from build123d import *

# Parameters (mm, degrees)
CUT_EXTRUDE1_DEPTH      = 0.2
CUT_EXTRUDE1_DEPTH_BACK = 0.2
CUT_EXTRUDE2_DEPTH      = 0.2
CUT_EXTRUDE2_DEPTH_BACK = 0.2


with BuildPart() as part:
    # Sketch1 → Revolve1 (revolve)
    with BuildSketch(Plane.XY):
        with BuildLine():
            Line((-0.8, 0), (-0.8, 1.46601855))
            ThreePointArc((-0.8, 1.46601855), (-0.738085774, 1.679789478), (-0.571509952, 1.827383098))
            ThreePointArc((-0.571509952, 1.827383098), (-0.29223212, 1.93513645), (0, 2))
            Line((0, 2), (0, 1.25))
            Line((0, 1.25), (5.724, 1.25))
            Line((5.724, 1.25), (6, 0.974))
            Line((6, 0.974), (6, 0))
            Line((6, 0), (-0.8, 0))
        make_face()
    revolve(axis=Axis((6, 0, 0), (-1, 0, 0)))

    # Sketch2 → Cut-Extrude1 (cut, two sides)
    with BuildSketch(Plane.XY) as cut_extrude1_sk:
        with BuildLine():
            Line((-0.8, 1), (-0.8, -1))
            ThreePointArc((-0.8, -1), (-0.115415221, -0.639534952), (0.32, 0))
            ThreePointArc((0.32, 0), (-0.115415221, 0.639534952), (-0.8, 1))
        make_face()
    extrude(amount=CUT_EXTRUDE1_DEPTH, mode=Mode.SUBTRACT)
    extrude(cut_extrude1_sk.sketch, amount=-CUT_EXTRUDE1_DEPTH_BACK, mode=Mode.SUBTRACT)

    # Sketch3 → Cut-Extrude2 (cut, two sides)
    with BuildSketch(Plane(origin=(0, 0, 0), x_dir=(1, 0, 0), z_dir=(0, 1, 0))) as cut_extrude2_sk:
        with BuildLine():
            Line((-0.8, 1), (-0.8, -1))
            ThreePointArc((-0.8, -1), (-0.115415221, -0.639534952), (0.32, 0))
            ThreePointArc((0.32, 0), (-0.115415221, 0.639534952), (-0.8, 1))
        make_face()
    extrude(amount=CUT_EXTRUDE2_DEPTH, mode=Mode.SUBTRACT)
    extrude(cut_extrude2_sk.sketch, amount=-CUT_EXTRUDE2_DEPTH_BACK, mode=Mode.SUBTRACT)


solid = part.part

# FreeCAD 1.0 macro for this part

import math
import FreeCAD as App
import Part
import Sketcher

V = App.Vector
Q = App.Units.Quantity

doc = App.newDocument("Part")
body = doc.addObject("PartDesign::Body", "Body")

sketch1 = doc.addObject("Sketcher::SketchObject", "Sketch")
body.addObject(sketch1)
sketch1.AttachmentSupport = (doc.XY_Plane, [""])
sketch1.MapMode = "FlatFace"
sketch1.addGeometry([
    Part.LineSegment(V(-0.8, 1.47, 0), V(-0.8, 0, 0)),
    Part.LineSegment(V(-0.8, 0, 0), V(6, 0, 0)),
    Part.LineSegment(V(6, 0, 0), V(6, 0.97, 0)),
    Part.LineSegment(V(6, 0.97, 0), V(5.72, 1.25, 0)),
    Part.LineSegment(V(5.72, 1.25, 0), V(0, 1.25, 0)),
    Part.LineSegment(V(0, 1.25, 0), V(0, 2, 0)),
    Part.ArcOfCircle(Part.Circle(V(0.29, 0.02, 0), V(0, 0, 1), 2), math.radians(98.22), math.radians(115.39)),
    Part.ArcOfCircle(Part.Circle(V(-0.4, 1.47, 0), V(0, 0, 1), 0.4), math.radians(115), math.radians(180)),
], False)
sketch1.addConstraint([
    Sketcher.Constraint("Coincident", 0, 2, 1, 1),
    Sketcher.Constraint("Coincident", 1, 2, 2, 1),
    Sketcher.Constraint("Coincident", 2, 2, 3, 1),
    Sketcher.Constraint("Coincident", 3, 2, 4, 1),
    Sketcher.Constraint("Coincident", 4, 2, 5, 1),
    Sketcher.Constraint("Coincident", 5, 2, 6, 1),
    Sketcher.Constraint("Tangent", 6, 2, 7, 1),
    Sketcher.Constraint("Tangent", 7, 2, 0, 1),
    Sketcher.Constraint("Vertical", 0),
    Sketcher.Constraint("Horizontal", 1),
    Sketcher.Constraint("Vertical", 2),
    Sketcher.Constraint("Horizontal", 4),
    Sketcher.Constraint("Vertical", 5),
    Sketcher.Constraint("PointOnObject", 0, 2, -1),
    Sketcher.Constraint("PointOnObject", 4, 2, -2),
    Sketcher.Constraint("Radius", 6, Q("2 mm")),
    Sketcher.Constraint("Radius", 7, Q("0.4 mm")),
    Sketcher.Constraint("Angle", 3, Q("135 deg")),
    Sketcher.Constraint("DistanceX", 1, 1, 1, 2, Q("6.8 mm")),
    Sketcher.Constraint("DistanceX", -1, 1, 1, 2, Q("6 mm")),
    Sketcher.Constraint("DistanceY", -1, 1, 5, 2, Q("2 mm")),
    Sketcher.Constraint("DistanceY", 5, 1, 5, 2, Q("0.75 mm")),
    Sketcher.Constraint("DistanceX", 4, 2, 4, 1, Q("5.724 mm")),
    Sketcher.Constraint("DistanceY", 0, 2, 0, 1, Q("1.466019 mm")),
])
revolution = doc.addObject("PartDesign::Revolution", "Revolution")
body.addObject(revolution)
revolution.Profile = sketch1
revolution.ReferenceAxis = (sketch1, ["H_Axis"])
revolution.Angle = 360

sketch2 = doc.addObject("Sketcher::SketchObject", "Sketch001")
body.addObject(sketch2)
sketch2.AttachmentSupport = (doc.XY_Plane, [""])
sketch2.MapMode = "FlatFace"
sketch2.addGeometry([
    Part.LineSegment(V(-0.8, 1, 0), V(-0.8, -1, 0)),
    Part.ArcOfCircle(Part.Circle(V(-1.2, 0.6, 0), V(0, 0, 1), 1.6), math.radians(-76), math.radians(-20)),
    Part.ArcOfCircle(Part.Circle(V(-1.2, -0.6, 0), V(0, 0, 1), 1.6), math.radians(20), math.radians(76)),
], False)
sketch2.addConstraint([
    Sketcher.Constraint("Coincident", 0, 2, 1, 1),
    Sketcher.Constraint("Coincident", 1, 2, 2, 1),
    Sketcher.Constraint("Coincident", 2, 2, 0, 1),
    Sketcher.Constraint("Vertical", 0),
    Sketcher.Constraint("Equal", 1, 2),
    Sketcher.Constraint("Symmetric", 1, 3, 2, 3, -1),
    Sketcher.Constraint("Radius", 1, Q("1.6 mm")),
    Sketcher.Constraint("DistanceY", 0, 2, 0, 1, Q("2 mm")),
    Sketcher.Constraint("DistanceX", 0, 2, -1, 1, Q("0.8 mm")),
    Sketcher.Constraint("DistanceX", -1, 1, 1, 2, Q("0.32 mm")),
])
pocket1 = doc.addObject("PartDesign::Pocket", "Pocket")
body.addObject(pocket1)
pocket1.Profile = sketch2
pocket1.Type = "TwoLengths"
pocket1.Length = 0.2
pocket1.Length2 = 0.2
pocket1.Reversed = True

sketch3 = doc.addObject("Sketcher::SketchObject", "Sketch002")
body.addObject(sketch3)
sketch3.AttachmentSupport = (doc.XZ_Plane, [""])
sketch3.MapMode = "FlatFace"
sketch3.addGeometry([
    Part.LineSegment(V(-0.8, -1, 0), V(-0.8, 1, 0)),
    Part.ArcOfCircle(Part.Circle(V(-1.2, -0.6, 0), V(0, 0, 1), 1.6), math.radians(20), math.radians(76)),
    Part.ArcOfCircle(Part.Circle(V(-1.2, 0.6, 0), V(0, 0, 1), 1.6), math.radians(-76), math.radians(-20)),
], False)
sketch3.addConstraint([
    Sketcher.Constraint("Coincident", 0, 2, 1, 2),
    Sketcher.Constraint("Coincident", 1, 1, 2, 2),
    Sketcher.Constraint("Coincident", 2, 1, 0, 1),
    Sketcher.Constraint("Vertical", 0),
    Sketcher.Constraint("Equal", 1, 2),
    Sketcher.Constraint("Symmetric", 1, 3, 2, 3, -1),
    Sketcher.Constraint("Radius", 1, Q("1.6 mm")),
    Sketcher.Constraint("DistanceY", 0, 1, 0, 2, Q("2 mm")),
    Sketcher.Constraint("DistanceX", 0, 2, -1, 1, Q("0.8 mm")),
    Sketcher.Constraint("DistanceX", -1, 1, 1, 1, Q("0.32 mm")),
])
pocket2 = doc.addObject("PartDesign::Pocket", "Pocket001")
body.addObject(pocket2)
pocket2.Profile = sketch3
pocket2.Type = "TwoLengths"
pocket2.Length = 0.2
pocket2.Length2 = 0.2

doc.recompute()
